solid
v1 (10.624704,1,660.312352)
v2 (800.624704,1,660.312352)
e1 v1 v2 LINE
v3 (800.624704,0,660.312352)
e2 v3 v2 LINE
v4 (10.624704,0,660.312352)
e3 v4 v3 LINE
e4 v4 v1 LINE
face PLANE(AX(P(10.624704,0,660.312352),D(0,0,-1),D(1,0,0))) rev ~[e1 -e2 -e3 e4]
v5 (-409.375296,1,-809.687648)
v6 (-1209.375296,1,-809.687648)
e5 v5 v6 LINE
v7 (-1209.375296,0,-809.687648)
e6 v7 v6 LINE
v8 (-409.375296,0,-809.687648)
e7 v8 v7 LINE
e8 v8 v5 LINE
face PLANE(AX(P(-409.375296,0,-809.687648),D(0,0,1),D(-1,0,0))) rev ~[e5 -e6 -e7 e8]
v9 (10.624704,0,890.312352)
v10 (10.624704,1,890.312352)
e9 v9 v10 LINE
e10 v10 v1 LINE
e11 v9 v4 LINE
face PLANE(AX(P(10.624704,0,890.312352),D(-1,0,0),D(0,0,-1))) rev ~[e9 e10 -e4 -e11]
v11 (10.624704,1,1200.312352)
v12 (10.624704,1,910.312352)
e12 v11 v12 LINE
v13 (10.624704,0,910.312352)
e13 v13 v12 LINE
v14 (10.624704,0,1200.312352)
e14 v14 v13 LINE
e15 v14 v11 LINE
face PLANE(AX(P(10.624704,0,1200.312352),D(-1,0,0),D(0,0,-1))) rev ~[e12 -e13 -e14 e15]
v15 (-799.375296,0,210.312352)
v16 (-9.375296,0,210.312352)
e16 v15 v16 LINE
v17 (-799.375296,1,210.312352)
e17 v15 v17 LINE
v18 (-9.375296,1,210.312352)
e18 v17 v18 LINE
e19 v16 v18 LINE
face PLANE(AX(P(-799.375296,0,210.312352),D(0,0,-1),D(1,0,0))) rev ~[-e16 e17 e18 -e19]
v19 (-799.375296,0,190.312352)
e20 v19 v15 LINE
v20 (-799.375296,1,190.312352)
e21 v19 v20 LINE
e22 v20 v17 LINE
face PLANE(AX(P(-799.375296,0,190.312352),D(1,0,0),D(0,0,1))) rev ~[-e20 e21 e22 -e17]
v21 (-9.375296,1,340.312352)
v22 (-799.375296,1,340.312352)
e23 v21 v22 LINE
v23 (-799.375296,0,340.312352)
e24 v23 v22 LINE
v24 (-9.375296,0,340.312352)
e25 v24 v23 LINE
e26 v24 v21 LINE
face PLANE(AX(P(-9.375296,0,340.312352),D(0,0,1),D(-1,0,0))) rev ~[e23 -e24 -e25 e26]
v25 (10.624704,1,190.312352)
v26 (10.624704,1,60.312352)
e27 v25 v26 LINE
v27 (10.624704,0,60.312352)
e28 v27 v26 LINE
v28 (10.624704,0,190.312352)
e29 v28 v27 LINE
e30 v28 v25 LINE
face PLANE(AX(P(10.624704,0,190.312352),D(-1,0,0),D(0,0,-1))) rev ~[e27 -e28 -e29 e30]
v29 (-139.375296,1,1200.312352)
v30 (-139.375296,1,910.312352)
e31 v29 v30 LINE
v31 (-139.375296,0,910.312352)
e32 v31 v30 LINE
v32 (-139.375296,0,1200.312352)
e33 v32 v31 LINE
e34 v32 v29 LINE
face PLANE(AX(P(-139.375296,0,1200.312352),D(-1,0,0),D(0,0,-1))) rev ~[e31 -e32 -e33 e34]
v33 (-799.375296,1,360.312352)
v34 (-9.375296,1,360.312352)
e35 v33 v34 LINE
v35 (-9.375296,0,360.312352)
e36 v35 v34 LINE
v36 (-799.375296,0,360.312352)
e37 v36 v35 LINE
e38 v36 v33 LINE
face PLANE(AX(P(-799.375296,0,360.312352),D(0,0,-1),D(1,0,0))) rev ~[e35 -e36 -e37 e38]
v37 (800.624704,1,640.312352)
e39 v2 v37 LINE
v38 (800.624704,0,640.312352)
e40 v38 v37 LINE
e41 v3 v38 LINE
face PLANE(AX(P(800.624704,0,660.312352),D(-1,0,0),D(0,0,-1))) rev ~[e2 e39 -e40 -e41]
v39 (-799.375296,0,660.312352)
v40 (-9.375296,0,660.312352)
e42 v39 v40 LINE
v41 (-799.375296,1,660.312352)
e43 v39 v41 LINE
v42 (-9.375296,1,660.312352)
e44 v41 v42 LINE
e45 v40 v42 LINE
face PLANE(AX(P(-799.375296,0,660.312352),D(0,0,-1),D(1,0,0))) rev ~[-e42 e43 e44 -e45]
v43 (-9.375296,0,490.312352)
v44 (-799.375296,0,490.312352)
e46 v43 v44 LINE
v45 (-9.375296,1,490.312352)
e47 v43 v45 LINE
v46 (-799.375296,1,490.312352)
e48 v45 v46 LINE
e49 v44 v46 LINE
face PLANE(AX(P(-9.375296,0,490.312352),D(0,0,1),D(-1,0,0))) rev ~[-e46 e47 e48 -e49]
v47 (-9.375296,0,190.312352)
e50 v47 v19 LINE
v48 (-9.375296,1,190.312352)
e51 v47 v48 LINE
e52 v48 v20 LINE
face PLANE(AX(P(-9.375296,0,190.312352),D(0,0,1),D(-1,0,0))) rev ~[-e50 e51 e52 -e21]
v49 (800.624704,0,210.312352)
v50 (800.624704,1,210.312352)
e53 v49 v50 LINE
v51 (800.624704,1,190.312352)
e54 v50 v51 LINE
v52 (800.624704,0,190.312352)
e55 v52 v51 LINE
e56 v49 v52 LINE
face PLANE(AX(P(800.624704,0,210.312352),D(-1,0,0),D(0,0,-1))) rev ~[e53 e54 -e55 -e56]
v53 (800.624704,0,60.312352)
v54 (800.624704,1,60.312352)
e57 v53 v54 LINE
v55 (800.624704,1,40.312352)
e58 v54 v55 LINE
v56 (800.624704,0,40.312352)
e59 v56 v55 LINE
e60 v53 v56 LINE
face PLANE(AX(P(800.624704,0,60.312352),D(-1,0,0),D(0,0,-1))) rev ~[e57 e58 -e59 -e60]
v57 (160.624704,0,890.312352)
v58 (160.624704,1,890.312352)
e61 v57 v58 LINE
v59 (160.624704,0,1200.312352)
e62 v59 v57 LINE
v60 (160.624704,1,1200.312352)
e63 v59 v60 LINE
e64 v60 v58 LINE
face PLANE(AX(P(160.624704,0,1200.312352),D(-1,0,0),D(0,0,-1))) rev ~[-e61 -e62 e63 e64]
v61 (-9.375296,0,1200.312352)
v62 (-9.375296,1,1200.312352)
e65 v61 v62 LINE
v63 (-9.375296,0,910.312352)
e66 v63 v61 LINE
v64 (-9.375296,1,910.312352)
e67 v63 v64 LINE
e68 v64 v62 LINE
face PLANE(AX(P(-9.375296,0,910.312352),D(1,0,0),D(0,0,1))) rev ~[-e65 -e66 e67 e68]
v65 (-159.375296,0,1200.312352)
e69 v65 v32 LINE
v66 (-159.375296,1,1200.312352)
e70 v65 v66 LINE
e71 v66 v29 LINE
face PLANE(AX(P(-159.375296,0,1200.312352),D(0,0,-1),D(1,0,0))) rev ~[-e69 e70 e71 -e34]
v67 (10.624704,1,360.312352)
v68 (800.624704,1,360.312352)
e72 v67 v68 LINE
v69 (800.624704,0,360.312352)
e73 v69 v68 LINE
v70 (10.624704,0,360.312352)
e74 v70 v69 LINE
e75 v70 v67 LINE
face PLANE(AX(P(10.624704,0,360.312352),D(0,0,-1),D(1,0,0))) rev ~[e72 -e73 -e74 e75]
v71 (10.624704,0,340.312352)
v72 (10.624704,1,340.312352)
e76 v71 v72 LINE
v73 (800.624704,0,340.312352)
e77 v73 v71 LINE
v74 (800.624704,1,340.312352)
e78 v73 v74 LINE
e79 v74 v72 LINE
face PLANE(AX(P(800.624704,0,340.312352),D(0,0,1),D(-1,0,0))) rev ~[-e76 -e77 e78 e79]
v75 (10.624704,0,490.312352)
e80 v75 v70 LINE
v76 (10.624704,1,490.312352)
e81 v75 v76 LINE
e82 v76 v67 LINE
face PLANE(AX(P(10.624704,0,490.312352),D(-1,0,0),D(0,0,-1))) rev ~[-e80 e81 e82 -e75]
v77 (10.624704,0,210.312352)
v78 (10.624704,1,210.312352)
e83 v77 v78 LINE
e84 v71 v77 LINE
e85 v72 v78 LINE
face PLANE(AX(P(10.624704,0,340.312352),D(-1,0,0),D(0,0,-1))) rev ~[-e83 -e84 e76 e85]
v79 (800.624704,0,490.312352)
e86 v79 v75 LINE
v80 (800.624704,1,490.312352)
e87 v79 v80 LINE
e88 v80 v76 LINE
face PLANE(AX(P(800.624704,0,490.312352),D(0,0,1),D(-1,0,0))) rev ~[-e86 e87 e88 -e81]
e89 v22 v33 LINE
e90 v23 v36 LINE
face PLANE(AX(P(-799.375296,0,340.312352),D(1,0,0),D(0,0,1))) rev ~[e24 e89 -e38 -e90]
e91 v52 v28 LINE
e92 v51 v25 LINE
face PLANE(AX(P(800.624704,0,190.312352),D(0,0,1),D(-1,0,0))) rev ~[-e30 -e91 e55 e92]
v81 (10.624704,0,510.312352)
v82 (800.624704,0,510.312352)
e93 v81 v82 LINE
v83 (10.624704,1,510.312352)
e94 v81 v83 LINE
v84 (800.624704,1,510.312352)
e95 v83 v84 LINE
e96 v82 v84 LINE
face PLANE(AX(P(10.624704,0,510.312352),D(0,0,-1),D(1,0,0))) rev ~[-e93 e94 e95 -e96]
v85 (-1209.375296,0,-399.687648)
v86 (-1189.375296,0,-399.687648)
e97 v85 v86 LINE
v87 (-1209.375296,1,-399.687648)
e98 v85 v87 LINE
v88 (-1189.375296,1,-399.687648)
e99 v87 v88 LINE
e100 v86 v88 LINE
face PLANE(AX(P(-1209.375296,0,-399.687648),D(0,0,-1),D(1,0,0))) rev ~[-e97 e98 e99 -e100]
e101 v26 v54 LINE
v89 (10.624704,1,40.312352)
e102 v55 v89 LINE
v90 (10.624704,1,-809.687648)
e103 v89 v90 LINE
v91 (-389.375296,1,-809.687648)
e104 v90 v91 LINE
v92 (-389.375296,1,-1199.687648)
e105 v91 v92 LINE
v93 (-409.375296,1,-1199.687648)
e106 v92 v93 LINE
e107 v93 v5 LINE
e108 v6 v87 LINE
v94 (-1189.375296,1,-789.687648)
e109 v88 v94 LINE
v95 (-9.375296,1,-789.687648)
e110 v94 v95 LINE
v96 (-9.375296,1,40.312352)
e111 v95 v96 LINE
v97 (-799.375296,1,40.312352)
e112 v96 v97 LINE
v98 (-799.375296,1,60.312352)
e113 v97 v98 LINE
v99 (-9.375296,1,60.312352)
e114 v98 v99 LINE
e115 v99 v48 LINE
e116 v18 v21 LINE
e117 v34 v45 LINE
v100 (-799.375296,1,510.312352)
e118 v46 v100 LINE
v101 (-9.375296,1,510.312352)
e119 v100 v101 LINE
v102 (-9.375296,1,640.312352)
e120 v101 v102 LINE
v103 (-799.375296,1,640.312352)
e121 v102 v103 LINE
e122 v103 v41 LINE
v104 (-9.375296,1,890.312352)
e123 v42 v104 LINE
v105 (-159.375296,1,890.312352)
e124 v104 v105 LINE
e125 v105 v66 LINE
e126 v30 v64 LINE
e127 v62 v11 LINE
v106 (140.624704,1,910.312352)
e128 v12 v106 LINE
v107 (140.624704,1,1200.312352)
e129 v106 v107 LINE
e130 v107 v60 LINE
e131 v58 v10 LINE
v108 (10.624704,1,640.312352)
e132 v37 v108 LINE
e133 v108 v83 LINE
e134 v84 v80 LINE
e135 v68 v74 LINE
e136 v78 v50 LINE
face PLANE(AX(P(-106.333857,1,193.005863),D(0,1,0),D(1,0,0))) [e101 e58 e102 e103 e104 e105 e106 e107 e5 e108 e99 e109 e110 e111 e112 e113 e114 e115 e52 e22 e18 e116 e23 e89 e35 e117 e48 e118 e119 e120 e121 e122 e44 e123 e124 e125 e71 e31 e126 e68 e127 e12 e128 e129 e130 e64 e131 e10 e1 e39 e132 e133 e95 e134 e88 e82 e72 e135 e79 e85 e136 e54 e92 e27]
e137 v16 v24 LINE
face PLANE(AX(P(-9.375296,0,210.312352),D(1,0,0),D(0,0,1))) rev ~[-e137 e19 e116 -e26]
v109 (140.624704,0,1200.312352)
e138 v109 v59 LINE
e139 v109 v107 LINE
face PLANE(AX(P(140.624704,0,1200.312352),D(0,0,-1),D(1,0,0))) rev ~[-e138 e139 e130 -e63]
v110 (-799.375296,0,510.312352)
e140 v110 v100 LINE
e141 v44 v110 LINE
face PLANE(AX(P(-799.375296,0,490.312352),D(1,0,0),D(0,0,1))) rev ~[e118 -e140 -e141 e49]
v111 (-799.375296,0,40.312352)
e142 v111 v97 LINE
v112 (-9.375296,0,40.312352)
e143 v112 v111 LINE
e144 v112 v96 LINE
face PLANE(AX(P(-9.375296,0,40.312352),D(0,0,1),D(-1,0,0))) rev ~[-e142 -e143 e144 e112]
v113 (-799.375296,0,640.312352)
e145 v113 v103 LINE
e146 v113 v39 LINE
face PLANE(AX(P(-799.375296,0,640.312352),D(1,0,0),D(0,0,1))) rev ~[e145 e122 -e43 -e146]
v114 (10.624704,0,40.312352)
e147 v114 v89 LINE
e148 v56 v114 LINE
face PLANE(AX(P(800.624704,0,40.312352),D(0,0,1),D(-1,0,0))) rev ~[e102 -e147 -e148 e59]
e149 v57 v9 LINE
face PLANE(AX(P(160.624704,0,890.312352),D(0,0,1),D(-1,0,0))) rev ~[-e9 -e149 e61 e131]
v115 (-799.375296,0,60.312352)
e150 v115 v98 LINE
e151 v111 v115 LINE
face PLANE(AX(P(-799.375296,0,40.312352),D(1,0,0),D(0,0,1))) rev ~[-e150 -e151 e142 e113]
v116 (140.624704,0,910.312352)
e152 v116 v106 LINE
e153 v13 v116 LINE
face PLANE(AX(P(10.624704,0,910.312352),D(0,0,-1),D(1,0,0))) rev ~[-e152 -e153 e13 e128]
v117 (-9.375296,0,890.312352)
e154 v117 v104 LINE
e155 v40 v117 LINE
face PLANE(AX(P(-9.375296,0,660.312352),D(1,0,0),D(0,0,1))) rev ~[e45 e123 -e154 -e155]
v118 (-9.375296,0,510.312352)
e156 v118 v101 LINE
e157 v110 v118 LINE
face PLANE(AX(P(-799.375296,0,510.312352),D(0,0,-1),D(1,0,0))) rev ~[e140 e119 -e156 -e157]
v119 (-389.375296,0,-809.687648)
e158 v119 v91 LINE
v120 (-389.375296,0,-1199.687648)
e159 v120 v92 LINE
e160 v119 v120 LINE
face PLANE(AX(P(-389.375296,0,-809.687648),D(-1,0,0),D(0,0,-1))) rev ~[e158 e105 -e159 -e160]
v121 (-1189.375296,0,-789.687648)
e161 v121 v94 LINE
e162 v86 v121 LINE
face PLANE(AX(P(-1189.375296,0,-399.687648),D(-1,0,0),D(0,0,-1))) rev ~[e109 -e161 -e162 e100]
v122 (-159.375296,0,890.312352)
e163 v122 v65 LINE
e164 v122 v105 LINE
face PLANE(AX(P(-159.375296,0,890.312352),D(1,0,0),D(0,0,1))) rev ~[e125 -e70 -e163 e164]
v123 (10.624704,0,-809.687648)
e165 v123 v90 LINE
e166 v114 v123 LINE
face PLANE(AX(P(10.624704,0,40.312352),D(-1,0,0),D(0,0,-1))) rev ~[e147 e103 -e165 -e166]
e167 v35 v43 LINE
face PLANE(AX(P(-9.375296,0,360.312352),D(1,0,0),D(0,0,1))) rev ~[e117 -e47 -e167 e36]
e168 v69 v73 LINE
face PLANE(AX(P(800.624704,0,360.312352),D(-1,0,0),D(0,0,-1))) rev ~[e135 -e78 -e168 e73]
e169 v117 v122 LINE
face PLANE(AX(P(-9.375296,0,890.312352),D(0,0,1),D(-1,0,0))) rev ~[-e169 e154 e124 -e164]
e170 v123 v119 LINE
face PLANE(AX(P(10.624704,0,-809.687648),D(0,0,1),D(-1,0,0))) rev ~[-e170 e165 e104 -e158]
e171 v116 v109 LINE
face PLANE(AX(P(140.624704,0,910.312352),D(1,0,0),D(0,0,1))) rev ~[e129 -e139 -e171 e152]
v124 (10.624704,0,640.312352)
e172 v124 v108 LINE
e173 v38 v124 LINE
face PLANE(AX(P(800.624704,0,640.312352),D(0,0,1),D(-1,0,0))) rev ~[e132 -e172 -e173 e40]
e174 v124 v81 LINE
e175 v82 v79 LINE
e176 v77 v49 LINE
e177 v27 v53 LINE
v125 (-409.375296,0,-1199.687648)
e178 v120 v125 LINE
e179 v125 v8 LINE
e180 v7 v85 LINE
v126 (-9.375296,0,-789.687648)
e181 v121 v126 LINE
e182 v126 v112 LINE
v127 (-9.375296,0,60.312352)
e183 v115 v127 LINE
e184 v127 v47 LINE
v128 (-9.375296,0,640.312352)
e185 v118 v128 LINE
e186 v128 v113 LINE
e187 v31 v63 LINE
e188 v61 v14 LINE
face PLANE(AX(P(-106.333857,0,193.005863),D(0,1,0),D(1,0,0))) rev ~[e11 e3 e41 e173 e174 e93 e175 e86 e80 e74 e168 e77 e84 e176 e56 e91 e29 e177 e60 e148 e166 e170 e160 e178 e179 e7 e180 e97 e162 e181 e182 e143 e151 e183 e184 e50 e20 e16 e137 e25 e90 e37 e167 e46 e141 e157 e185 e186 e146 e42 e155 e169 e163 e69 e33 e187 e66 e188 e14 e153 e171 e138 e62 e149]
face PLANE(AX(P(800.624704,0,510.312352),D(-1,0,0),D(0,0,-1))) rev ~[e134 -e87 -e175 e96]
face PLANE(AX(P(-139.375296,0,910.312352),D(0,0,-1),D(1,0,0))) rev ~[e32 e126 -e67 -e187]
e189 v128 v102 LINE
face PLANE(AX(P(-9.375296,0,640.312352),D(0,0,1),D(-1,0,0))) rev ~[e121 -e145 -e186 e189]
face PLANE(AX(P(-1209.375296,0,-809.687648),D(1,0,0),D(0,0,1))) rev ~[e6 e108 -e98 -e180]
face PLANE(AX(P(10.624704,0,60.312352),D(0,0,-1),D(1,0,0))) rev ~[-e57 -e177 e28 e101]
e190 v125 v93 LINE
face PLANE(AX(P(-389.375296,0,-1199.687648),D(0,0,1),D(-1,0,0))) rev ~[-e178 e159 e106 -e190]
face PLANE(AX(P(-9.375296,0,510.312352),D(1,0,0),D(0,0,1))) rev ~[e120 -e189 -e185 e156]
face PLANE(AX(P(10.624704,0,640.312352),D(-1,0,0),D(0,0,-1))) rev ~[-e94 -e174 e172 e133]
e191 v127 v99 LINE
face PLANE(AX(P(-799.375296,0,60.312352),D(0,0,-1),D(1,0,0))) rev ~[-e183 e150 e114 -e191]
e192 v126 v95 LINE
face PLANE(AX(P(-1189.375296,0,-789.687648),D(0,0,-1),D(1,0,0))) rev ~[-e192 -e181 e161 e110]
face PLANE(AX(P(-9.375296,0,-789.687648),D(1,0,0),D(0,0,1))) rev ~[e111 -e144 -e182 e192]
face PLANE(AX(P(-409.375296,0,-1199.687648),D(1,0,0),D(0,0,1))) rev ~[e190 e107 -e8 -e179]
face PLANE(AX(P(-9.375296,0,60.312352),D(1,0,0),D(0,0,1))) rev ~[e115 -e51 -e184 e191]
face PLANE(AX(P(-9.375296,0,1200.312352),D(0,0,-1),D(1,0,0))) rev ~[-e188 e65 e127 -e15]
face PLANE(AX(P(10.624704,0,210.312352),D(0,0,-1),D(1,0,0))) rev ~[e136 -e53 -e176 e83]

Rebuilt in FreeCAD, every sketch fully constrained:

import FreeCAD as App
import Part
import Sketcher

V = App.Vector
Q = App.Units.Quantity


def add_polygon(sketch, points):
    """Adds a closed chain of lines whose ends are joined by coincident constraints."""
    first, n = sketch.GeometryCount, len(points)
    for a, b in zip(points, points[1:] + points[:1]):
        sketch.addGeometry(Part.LineSegment(App.Vector(*a, 0), App.Vector(*b, 0)), False)
    for i in range(n):
        sketch.addConstraint(Sketcher.Constraint("Coincident", first + i, 2, first + (i + 1) % n, 1))

doc = App.newDocument("Part")
body = doc.addObject("PartDesign::Body", "Body")

sketch1 = doc.addObject("Sketcher::SketchObject", "Sketch")
body.addObject(sketch1)
sketch1.AttachmentSupport = (doc.XZ_Plane, [""])
sketch1.MapMode = "FlatFace"
add_polygon(sketch1, [(-1189, -400), (-1189, -790), (-9, -790), (-9, 40), (-799, 40), (-799, 60), (-9, 60), (-9, 190), (-799, 190), (-799, 210), (-9, 210), (-9, 340), (-799, 340), (-799, 360), (-9, 360), (-9, 490), (-799, 490), (-799, 510), (-9, 510), (-9, 640), (-799, 640), (-799, 660), (-9, 660), (-9, 890), (-159, 890), (-159, 1200), (-139, 1200), (-139, 910), (-9, 910), (-9, 1200), (11, 1200), (11, 910), (141, 910), (141, 1200), (161, 1200), (161, 890), (11, 890), (11, 660), (801, 660), (801, 640), (11, 640), (11, 510), (801, 510), (801, 490), (11, 490), (11, 360), (801, 360), (801, 340), (11, 340), (11, 210), (801, 210), (801, 190), (11, 190), (11, 60), (801, 60), (801, 40), (11, 40), (11, -810), (-389, -810), (-389, -1200), (-409, -1200), (-409, -810), (-1209, -810), (-1209, -400)])
sketch1.addConstraint([
    Sketcher.Constraint("Vertical", 0),
    Sketcher.Constraint("Horizontal", 1),
    Sketcher.Constraint("Vertical", 2),
    Sketcher.Constraint("Horizontal", 3),
    Sketcher.Constraint("Vertical", 4),
    Sketcher.Constraint("Horizontal", 5),
    Sketcher.Constraint("Vertical", 6),
    Sketcher.Constraint("Horizontal", 7),
    Sketcher.Constraint("Vertical", 8),
    Sketcher.Constraint("Horizontal", 9),
    Sketcher.Constraint("Vertical", 10),
    Sketcher.Constraint("Horizontal", 11),
    Sketcher.Constraint("Vertical", 12),
    Sketcher.Constraint("Horizontal", 13),
    Sketcher.Constraint("Vertical", 14),
    Sketcher.Constraint("Horizontal", 15),
    Sketcher.Constraint("Vertical", 16),
    Sketcher.Constraint("Horizontal", 17),
    Sketcher.Constraint("Vertical", 18),
    Sketcher.Constraint("Horizontal", 19),
    Sketcher.Constraint("Vertical", 20),
    Sketcher.Constraint("Horizontal", 21),
    Sketcher.Constraint("Vertical", 22),
    Sketcher.Constraint("Horizontal", 23),
    Sketcher.Constraint("Vertical", 24),
    Sketcher.Constraint("Horizontal", 25),
    Sketcher.Constraint("Vertical", 26),
    Sketcher.Constraint("Horizontal", 27),
    Sketcher.Constraint("Vertical", 28),
    Sketcher.Constraint("Horizontal", 29),
    Sketcher.Constraint("Vertical", 30),
    Sketcher.Constraint("Horizontal", 31),
    Sketcher.Constraint("Vertical", 32),
    Sketcher.Constraint("Horizontal", 33),
    Sketcher.Constraint("Vertical", 34),
    Sketcher.Constraint("Horizontal", 35),
    Sketcher.Constraint("Vertical", 36),
    Sketcher.Constraint("Horizontal", 37),
    Sketcher.Constraint("Vertical", 38),
    Sketcher.Constraint("Horizontal", 39),
    Sketcher.Constraint("Vertical", 40),
    Sketcher.Constraint("Horizontal", 41),
    Sketcher.Constraint("Vertical", 42),
    Sketcher.Constraint("Horizontal", 43),
    Sketcher.Constraint("Vertical", 44),
    Sketcher.Constraint("Horizontal", 45),
    Sketcher.Constraint("Vertical", 46),
    Sketcher.Constraint("Horizontal", 47),
    Sketcher.Constraint("Vertical", 48),
    Sketcher.Constraint("Horizontal", 49),
    Sketcher.Constraint("Vertical", 50),
    Sketcher.Constraint("Horizontal", 51),
    Sketcher.Constraint("Vertical", 52),
    Sketcher.Constraint("Horizontal", 53),
    Sketcher.Constraint("Vertical", 54),
    Sketcher.Constraint("Horizontal", 55),
    Sketcher.Constraint("Vertical", 56),
    Sketcher.Constraint("Horizontal", 57),
    Sketcher.Constraint("Vertical", 58),
    Sketcher.Constraint("Horizontal", 59),
    Sketcher.Constraint("Vertical", 60),
    Sketcher.Constraint("Horizontal", 61),
    Sketcher.Constraint("Vertical", 62),
    Sketcher.Constraint("Horizontal", 63),
    Sketcher.Constraint("Horizontal", 25, 2, 28, 2),
    Sketcher.Constraint("Horizontal", 27, 2, 30, 2),
    Sketcher.Constraint("Horizontal", 29, 2, 32, 2),
    Sketcher.Constraint("Horizontal", 23, 2, 34, 2),
    Sketcher.Constraint("Horizontal", 21, 2, 36, 2),
    Sketcher.Constraint("Horizontal", 19, 2, 38, 2),
    Sketcher.Constraint("Horizontal", 17, 2, 40, 2),
    Sketcher.Constraint("Horizontal", 15, 2, 42, 2),
    Sketcher.Constraint("Horizontal", 13, 2, 44, 2),
    Sketcher.Constraint("Horizontal", 11, 2, 46, 2),
    Sketcher.Constraint("Horizontal", 9, 2, 48, 2),
    Sketcher.Constraint("Horizontal", 7, 2, 50, 2),
    Sketcher.Constraint("Horizontal", 5, 2, 52, 2),
    Sketcher.Constraint("Horizontal", 3, 2, 54, 2),
    Sketcher.Constraint("Horizontal", 57, 2, 60, 2),
    Sketcher.Constraint("Vertical", 2, 2, 5, 2),
    Sketcher.Constraint("Vertical", 4, 2, 7, 2),
    Sketcher.Constraint("Vertical", 6, 2, 9, 2),
    Sketcher.Constraint("Vertical", 8, 2, 11, 2),
    Sketcher.Constraint("Vertical", 10, 2, 13, 2),
    Sketcher.Constraint("Vertical", 12, 2, 15, 2),
    Sketcher.Constraint("Vertical", 14, 2, 17, 2),
    Sketcher.Constraint("Vertical", 16, 2, 19, 2),
    Sketcher.Constraint("Vertical", 18, 2, 21, 2),
    Sketcher.Constraint("Vertical", 22, 2, 27, 2),
    Sketcher.Constraint("Vertical", 30, 2, 35, 2),
    Sketcher.Constraint("Vertical", 36, 2, 39, 2),
    Sketcher.Constraint("Vertical", 38, 2, 41, 2),
    Sketcher.Constraint("Vertical", 40, 2, 43, 2),
    Sketcher.Constraint("Vertical", 42, 2, 45, 2),
    Sketcher.Constraint("Vertical", 44, 2, 47, 2),
    Sketcher.Constraint("Vertical", 46, 2, 49, 2),
    Sketcher.Constraint("Vertical", 48, 2, 51, 2),
    Sketcher.Constraint("Vertical", 50, 2, 53, 2),
    Sketcher.Constraint("Vertical", 52, 2, 55, 2),
    Sketcher.Constraint("Equal", 25, 29),
    Sketcher.Constraint("Equal", 27, 31),
    Sketcher.Constraint("Equal", 29, 33),
    Sketcher.Constraint("Equal", 21, 37),
    Sketcher.Constraint("Equal", 33, 59),
    Sketcher.Constraint("Equal", 59, 63),
    Sketcher.Constraint("Equal", 63, 4),
    Sketcher.Constraint("Equal", 31, 6),
    Sketcher.Constraint("Equal", 4, 8),
    Sketcher.Constraint("Equal", 6, 10),
    Sketcher.Constraint("Equal", 8, 12),
    Sketcher.Constraint("Equal", 10, 14),
    Sketcher.Constraint("Equal", 12, 16),
    Sketcher.Constraint("Equal", 14, 18),
    Sketcher.Constraint("Equal", 16, 20),
    Sketcher.Constraint("Equal", 0, 58),
    Sketcher.Constraint("DistanceX", 1, 1, 1, 2, Q("1180 mm")),
    Sketcher.Constraint("DistanceX", 3, 2, 3, 1, Q("790 mm")),
    Sketcher.Constraint("DistanceX", 23, 2, 23, 1, Q("150 mm")),
    Sketcher.Constraint("DistanceX", 25, 1, 25, 2, Q("20 mm")),
    Sketcher.Constraint("DistanceX", 57, 2, 57, 1, Q("400 mm")),
    Sketcher.Constraint("DistanceY", 0, 2, 0, 1, Q("390 mm")),
    Sketcher.Constraint("DistanceY", 2, 1, 2, 2, Q("830 mm")),
    Sketcher.Constraint("DistanceY", 22, 1, 22, 2, Q("230 mm")),
    Sketcher.Constraint("DistanceY", 24, 1, 24, 2, Q("310 mm")),
    Sketcher.Constraint("DistanceY", 26, 2, 26, 1, Q("290 mm")),
    Sketcher.Constraint("DistanceY", 56, 2, 56, 1, Q("850 mm")),
    Sketcher.Constraint("DistanceX", 0, 2, -1, 1, Q("1189.375296 mm")),
    Sketcher.Constraint("DistanceY", 0, 2, -1, 1, Q("789.687648 mm")),
])
pad1 = doc.addObject("PartDesign::Pad", "Pad")
body.addObject(pad1)
pad1.Profile = sketch1
pad1.Length = 1
pad1.Reversed = True

doc.recompute()
